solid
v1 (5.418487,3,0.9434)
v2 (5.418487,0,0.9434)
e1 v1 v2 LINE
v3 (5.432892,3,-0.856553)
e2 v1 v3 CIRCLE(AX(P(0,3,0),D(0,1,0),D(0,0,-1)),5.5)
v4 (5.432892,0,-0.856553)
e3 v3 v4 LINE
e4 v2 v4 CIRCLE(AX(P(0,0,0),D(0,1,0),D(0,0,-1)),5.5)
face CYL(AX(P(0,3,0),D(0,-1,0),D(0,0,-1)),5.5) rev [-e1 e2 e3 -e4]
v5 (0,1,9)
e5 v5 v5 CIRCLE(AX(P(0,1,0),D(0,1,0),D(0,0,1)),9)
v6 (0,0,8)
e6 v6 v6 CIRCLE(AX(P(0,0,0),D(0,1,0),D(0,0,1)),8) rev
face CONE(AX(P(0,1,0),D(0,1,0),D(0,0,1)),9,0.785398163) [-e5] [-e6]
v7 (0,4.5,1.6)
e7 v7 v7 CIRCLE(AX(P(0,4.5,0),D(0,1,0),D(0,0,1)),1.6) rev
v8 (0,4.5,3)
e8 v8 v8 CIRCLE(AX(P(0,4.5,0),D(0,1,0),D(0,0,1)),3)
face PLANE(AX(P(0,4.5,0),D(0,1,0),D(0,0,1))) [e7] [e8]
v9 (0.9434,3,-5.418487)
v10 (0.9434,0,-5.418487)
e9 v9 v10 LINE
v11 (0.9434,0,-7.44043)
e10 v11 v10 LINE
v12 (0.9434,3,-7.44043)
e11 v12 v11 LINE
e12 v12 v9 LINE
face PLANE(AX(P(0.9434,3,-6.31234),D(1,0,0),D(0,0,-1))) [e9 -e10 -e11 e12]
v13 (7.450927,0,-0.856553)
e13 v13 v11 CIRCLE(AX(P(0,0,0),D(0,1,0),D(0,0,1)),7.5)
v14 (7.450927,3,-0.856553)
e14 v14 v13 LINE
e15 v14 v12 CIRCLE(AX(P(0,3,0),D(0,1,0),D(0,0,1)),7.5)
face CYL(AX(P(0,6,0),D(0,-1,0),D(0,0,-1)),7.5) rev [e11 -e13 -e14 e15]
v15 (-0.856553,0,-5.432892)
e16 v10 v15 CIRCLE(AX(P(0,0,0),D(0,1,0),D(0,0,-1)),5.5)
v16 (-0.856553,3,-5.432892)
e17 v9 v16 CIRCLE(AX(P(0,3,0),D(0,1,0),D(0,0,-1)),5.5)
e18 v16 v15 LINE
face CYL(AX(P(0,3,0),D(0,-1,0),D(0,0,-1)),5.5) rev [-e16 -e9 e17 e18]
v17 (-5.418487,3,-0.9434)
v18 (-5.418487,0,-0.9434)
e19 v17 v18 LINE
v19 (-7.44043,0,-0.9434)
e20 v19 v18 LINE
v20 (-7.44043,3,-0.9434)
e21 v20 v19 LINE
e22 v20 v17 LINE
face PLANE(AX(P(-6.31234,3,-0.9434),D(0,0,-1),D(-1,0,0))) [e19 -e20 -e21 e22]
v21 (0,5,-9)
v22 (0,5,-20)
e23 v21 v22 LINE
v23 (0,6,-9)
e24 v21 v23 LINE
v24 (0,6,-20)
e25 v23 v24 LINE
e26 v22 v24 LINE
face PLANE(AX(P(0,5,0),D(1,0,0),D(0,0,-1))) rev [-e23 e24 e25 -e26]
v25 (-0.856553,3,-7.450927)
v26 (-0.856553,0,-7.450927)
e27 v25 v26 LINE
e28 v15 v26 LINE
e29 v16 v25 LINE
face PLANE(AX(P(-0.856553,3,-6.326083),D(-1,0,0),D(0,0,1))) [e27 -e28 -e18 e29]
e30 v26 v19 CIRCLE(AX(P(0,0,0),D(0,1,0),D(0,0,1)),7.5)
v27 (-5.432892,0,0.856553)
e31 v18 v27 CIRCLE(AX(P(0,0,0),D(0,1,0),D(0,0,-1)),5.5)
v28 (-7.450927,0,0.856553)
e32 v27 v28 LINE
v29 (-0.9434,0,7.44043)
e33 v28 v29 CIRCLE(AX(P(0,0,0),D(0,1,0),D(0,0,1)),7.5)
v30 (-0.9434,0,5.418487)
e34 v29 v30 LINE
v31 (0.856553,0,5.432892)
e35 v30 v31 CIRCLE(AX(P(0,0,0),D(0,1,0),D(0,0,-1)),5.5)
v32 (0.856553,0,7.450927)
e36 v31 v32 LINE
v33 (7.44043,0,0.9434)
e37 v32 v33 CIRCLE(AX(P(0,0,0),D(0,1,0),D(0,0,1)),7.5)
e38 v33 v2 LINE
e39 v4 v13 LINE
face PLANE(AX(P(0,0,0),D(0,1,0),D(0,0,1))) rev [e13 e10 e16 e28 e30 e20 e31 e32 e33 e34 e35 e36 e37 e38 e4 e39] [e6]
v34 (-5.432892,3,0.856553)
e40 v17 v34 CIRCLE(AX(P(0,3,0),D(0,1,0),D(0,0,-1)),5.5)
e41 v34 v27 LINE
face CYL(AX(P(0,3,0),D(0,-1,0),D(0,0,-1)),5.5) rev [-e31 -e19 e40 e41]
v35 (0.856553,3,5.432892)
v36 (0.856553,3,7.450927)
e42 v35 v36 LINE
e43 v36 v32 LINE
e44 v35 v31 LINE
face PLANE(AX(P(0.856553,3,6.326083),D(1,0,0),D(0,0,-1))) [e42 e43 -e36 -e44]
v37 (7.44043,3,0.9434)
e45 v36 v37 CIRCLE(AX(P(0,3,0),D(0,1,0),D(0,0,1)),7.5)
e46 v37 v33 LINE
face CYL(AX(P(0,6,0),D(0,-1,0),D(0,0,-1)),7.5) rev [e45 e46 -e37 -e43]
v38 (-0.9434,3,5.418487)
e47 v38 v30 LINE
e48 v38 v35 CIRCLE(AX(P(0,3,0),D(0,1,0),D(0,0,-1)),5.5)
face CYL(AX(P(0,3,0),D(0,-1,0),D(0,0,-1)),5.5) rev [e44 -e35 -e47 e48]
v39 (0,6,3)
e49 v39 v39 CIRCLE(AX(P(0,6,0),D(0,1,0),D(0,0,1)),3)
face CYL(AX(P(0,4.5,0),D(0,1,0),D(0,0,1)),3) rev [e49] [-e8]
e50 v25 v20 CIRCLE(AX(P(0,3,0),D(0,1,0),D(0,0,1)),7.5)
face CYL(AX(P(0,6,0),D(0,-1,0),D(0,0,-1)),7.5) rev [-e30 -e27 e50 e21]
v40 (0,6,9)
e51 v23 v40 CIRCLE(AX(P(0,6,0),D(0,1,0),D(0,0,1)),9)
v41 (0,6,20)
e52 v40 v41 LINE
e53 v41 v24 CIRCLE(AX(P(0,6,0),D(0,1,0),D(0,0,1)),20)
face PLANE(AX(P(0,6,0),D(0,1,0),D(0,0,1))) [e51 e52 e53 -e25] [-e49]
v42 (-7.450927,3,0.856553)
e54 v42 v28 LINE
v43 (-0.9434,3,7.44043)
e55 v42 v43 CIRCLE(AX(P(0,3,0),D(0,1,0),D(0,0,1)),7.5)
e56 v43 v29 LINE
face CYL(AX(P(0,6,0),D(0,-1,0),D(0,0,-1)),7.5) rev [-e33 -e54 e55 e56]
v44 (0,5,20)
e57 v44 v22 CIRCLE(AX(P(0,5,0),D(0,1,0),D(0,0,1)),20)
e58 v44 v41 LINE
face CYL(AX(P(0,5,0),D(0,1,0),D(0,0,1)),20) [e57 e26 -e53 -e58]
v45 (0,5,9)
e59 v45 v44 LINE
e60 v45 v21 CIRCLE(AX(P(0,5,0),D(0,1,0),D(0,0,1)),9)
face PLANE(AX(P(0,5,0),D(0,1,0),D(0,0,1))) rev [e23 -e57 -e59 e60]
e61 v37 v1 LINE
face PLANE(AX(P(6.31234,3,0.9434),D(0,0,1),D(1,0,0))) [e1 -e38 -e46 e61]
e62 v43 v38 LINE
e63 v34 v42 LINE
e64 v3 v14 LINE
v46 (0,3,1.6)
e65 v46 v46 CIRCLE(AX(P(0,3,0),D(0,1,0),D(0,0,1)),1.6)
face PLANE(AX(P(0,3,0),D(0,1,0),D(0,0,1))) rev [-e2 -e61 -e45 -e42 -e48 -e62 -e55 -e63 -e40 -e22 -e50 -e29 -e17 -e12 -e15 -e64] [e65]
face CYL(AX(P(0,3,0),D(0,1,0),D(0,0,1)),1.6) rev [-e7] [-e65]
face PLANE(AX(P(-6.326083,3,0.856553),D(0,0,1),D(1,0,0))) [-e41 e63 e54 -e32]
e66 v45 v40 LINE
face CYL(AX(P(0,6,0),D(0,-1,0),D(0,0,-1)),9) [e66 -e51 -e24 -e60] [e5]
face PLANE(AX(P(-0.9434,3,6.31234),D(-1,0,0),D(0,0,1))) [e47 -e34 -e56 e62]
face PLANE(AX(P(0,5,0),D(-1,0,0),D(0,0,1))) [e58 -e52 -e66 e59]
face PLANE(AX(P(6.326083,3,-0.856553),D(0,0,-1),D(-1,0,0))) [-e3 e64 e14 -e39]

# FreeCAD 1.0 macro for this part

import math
import FreeCAD as App
import Part
import Sketcher
Q = App.Units.Quantity


def edges_at(feature, points):
    """Names of the edges that pass closest to the given points."""
    edges = feature.Shape.Edges
    near = lambda p: min(range(len(edges)), key=lambda i: edges[i].distToShape(Part.Vertex(*p))[0])
    return sorted({f"Edge{near(p) + 1}" for p in points})

doc = App.newDocument("Part")
body = doc.addObject("PartDesign::Body", "Body")

sketch1 = doc.addObject("Sketcher::SketchObject", "Sketch")
body.addObject(sketch1)
sketch1.AttachmentSupport = (doc.XZ_Plane, [""])
sketch1.MapMode = "FlatFace"
sketch1.addGeometry([
    Part.Circle(App.Vector(0, 0, 0), App.Vector(0, 0, 1), 9),
    Part.Circle(App.Vector(0, 0, 0), App.Vector(0, 0, 1), 7.5),
], False)
sketch1.addConstraint([
    Sketcher.Constraint("Coincident", 0, 3, -1, 1),
    Sketcher.Constraint("Coincident", 1, 3, -1, 1),
    Sketcher.Constraint("Diameter", 0, Q("18 mm")),
    Sketcher.Constraint("Diameter", 1, Q("15 mm")),
])
pad1 = doc.addObject("PartDesign::Pad", "Pad")
body.addObject(pad1)
pad1.Profile = sketch1
pad1.Length = 6
pad1.Reversed = True

sketch2 = doc.addObject("Sketcher::SketchObject", "Sketch001")
body.addObject(sketch2)
sketch2.AttachmentSupport = (doc.XZ_Plane, [""])
sketch2.MapMode = "FlatFace"
sketch2.AttachmentOffset = App.Placement(App.Vector(0, 0, -5), App.Rotation())
sketch2.addGeometry([
    Part.LineSegment(App.Vector(0, -20, 0), App.Vector(0, -9, 0)),
    Part.ArcOfCircle(Part.Circle(App.Vector(0, 0, 0), App.Vector(0, 0, 1), 9), math.radians(-90), math.radians(0)),
    Part.ArcOfCircle(Part.Circle(App.Vector(0, 0, 0), App.Vector(0, 0, 1), 9), math.radians(0), math.radians(90)),
    Part.LineSegment(App.Vector(0, 9, 0), App.Vector(0, 20, 0)),
    Part.ArcOfCircle(Part.Circle(App.Vector(0, 0, 0), App.Vector(0, 0, 1), 20), math.radians(0), math.radians(90)),
    Part.ArcOfCircle(Part.Circle(App.Vector(0, 0, 0), App.Vector(0, 0, 1), 20), math.radians(-90), math.radians(0)),
], False)
sketch2.addConstraint([
    Sketcher.Constraint("Coincident", 0, 2, 1, 1),
    Sketcher.Constraint("Tangent", 1, 2, 2, 1),
    Sketcher.Constraint("Coincident", 2, 2, 3, 1),
    Sketcher.Constraint("Coincident", 3, 2, 4, 2),
    Sketcher.Constraint("Tangent", 4, 1, 5, 2),
    Sketcher.Constraint("Coincident", 5, 1, 0, 1),
    Sketcher.Constraint("Vertical", 0),
    Sketcher.Constraint("Vertical", 3),
    Sketcher.Constraint("Coincident", 1, 3, -1, 1),
    Sketcher.Constraint("Coincident", 4, 3, -1, 1),
    Sketcher.Constraint("Equal", 1, 2),
    Sketcher.Constraint("Equal", 4, 5),
    Sketcher.Constraint("PointOnObject", 0, 2, -2),
    Sketcher.Constraint("PointOnObject", 1, 2, -1),
    Sketcher.Constraint("PointOnObject", 2, 2, -2),
    Sketcher.Constraint("PointOnObject", 4, 1, -1),
    Sketcher.Constraint("Radius", 1, Q("9 mm")),
    Sketcher.Constraint("Radius", 4, Q("20 mm")),
])
pad2 = doc.addObject("PartDesign::Pad", "Pad001")
body.addObject(pad2)
pad2.Profile = sketch2
pad2.Length = 1
pad2.Reversed = True

sketch3 = doc.addObject("Sketcher::SketchObject", "Sketch002")
body.addObject(sketch3)
sketch3.AttachmentSupport = (doc.XZ_Plane, [""])
sketch3.MapMode = "FlatFace"
sketch3.addGeometry([
    Part.ArcOfCircle(Part.Circle(App.Vector(0, 0, 0), App.Vector(0, 0, 1), 7.5), math.radians(83.442107), math.radians(97.226184)),
    Part.LineSegment(App.Vector(-0.9434, 7.44043, 0), App.Vector(-0.9434, 5.418487, 0)),
    Part.ArcOfCircle(Part.Circle(App.Vector(0, 0, 0), App.Vector(0, 0, 1), 5.5), math.radians(81.040461), math.radians(99.876625)),
    Part.LineSegment(App.Vector(0.856553, 5.432892, 0), App.Vector(0.856553, 7.450927, 0)),
    Part.ArcOfCircle(Part.Circle(App.Vector(0, 0, 0), App.Vector(0, 0, 1), 5.5), math.radians(-8.959539), math.radians(9.876625)),
    Part.LineSegment(App.Vector(5.432892, -0.856553, 0), App.Vector(7.450927, -0.856553, 0)),
    Part.ArcOfCircle(Part.Circle(App.Vector(0, 0, 0), App.Vector(0, 0, 1), 7.5), math.radians(-6.557893), math.radians(7.226184)),
    Part.LineSegment(App.Vector(7.44043, 0.9434, 0), App.Vector(5.418487, 0.9434, 0)),
    Part.ArcOfCircle(Part.Circle(App.Vector(0, 0, 0), App.Vector(0, 0, 1), 5.5), math.radians(-98.959539), math.radians(-80.123375)),
    Part.LineSegment(App.Vector(-0.856553, -5.432892, 0), App.Vector(-0.856553, -7.450927, 0)),
    Part.ArcOfCircle(Part.Circle(App.Vector(0, 0, 0), App.Vector(0, 0, 1), 7.5), math.radians(-96.557893), math.radians(-82.773816)),
    Part.LineSegment(App.Vector(0.9434, -7.44043, 0), App.Vector(0.9434, -5.418487, 0)),
    Part.ArcOfCircle(Part.Circle(App.Vector(0, 0, 0), App.Vector(0, 0, 1), 5.5), math.radians(171.040461), math.radians(189.876625)),
    Part.LineSegment(App.Vector(-5.432892, 0.856553, 0), App.Vector(-7.450927, 0.856553, 0)),
    Part.ArcOfCircle(Part.Circle(App.Vector(0, 0, 0), App.Vector(0, 0, 1), 7.5), math.radians(173.442107), math.radians(187.226184)),
    Part.LineSegment(App.Vector(-7.44043, -0.9434, 0), App.Vector(-5.418487, -0.9434, 0)),
], False)
sketch3.addConstraint([
    Sketcher.Constraint("Coincident", 0, 2, 1, 1),
    Sketcher.Constraint("Coincident", 1, 2, 2, 2),
    Sketcher.Constraint("Coincident", 2, 1, 3, 1),
    Sketcher.Constraint("Coincident", 3, 2, 0, 1),
    Sketcher.Constraint("Coincident", 4, 1, 5, 1),
    Sketcher.Constraint("Coincident", 5, 2, 6, 1),
    Sketcher.Constraint("Coincident", 6, 2, 7, 1),
    Sketcher.Constraint("Coincident", 7, 2, 4, 2),
    Sketcher.Constraint("Coincident", 8, 1, 9, 1),
    Sketcher.Constraint("Coincident", 9, 2, 10, 1),
    Sketcher.Constraint("Coincident", 10, 2, 11, 1),
    Sketcher.Constraint("Coincident", 11, 2, 8, 2),
    Sketcher.Constraint("Coincident", 12, 1, 13, 1),
    Sketcher.Constraint("Coincident", 13, 2, 14, 1),
    Sketcher.Constraint("Coincident", 14, 2, 15, 1),
    Sketcher.Constraint("Coincident", 15, 2, 12, 2),
    Sketcher.Constraint("Vertical", 1),
    Sketcher.Constraint("Vertical", 3),
    Sketcher.Constraint("Horizontal", 5),
    Sketcher.Constraint("Horizontal", 7),
    Sketcher.Constraint("Vertical", 9),
    Sketcher.Constraint("Vertical", 11),
    Sketcher.Constraint("Horizontal", 13),
    Sketcher.Constraint("Horizontal", 15),
    Sketcher.Constraint("Coincident", 0, 3, -1, 1),
    Sketcher.Constraint("Coincident", 2, 3, -1, 1),
    Sketcher.Constraint("Coincident", 4, 3, -1, 1),
    Sketcher.Constraint("Coincident", 6, 3, -1, 1),
    Sketcher.Constraint("Coincident", 8, 3, -1, 1),
    Sketcher.Constraint("Coincident", 10, 3, -1, 1),
    Sketcher.Constraint("Coincident", 12, 3, -1, 1),
    Sketcher.Constraint("Coincident", 14, 3, -1, 1),
    Sketcher.Constraint("Equal", 2, 4),
    Sketcher.Constraint("Equal", 0, 6),
    Sketcher.Constraint("Equal", 4, 8),
    Sketcher.Constraint("Equal", 6, 10),
    Sketcher.Constraint("Equal", 8, 12),
    Sketcher.Constraint("Equal", 10, 14),
    Sketcher.Constraint("Equal", 5, 13),
    Sketcher.Constraint("Equal", 7, 15),
    Sketcher.Constraint("Equal", 15, 1),
    Sketcher.Constraint("Equal", 13, 3),
    Sketcher.Constraint("Equal", 3, 9),
    Sketcher.Constraint("Equal", 1, 11),
    Sketcher.Constraint("Radius", 0, Q("7.5 mm")),
    Sketcher.Constraint("Radius", 2, Q("5.5 mm")),
    Sketcher.Constraint("DistanceX", 0, 2, -1, 1, Q("0.9434 mm")),
    Sketcher.Constraint("DistanceX", 5, 1, 5, 2, Q("2.018035 mm")),
])
pad3 = doc.addObject("PartDesign::Pad", "Pad002")
body.addObject(pad3)
pad3.Profile = sketch3
pad3.Length = 3
pad3.Reversed = True

sketch4 = doc.addObject("Sketcher::SketchObject", "Sketch003")
body.addObject(sketch4)
sketch4.AttachmentSupport = (doc.XZ_Plane, [""])
sketch4.MapMode = "FlatFace"
sketch4.AttachmentOffset = App.Placement(App.Vector(0, 0, -3), App.Rotation())
sketch4.addGeometry(Part.Circle(App.Vector(0, 0, 0), App.Vector(0, 0, 1), 7.5), False)
sketch4.addConstraint([
    Sketcher.Constraint("Coincident", 0, 3, -1, 1),
    Sketcher.Constraint("Diameter", 0, Q("15 mm")),
])
pad4 = doc.addObject("PartDesign::Pad", "Pad003")
body.addObject(pad4)
pad4.Profile = sketch4
pad4.Length = 3
pad4.Reversed = True

sketch5 = doc.addObject("Sketcher::SketchObject", "Sketch004")
body.addObject(sketch5)
sketch5.AttachmentSupport = (doc.XZ_Plane, [""])
sketch5.MapMode = "FlatFace"
sketch5.AttachmentOffset = App.Placement(App.Vector(0, 0, -6), App.Rotation())
sketch5.addGeometry(Part.Circle(App.Vector(0, 0, 0), App.Vector(0, 0, 1), 1.6), False)
sketch5.addConstraint([
    Sketcher.Constraint("Coincident", 0, 3, -1, 1),
    Sketcher.Constraint("Diameter", 0, Q("3.2 mm")),
])
pocket1 = doc.addObject("PartDesign::Pocket", "Pocket")
body.addObject(pocket1)
pocket1.Profile = sketch5
pocket1.Length = 3
pocket1.Reversed = True

sketch6 = doc.addObject("Sketcher::SketchObject", "Sketch005")
body.addObject(sketch6)
sketch6.AttachmentSupport = (doc.XZ_Plane, [""])
sketch6.MapMode = "FlatFace"
sketch6.AttachmentOffset = App.Placement(App.Vector(0, 0, -6), App.Rotation())
sketch6.addGeometry(Part.Circle(App.Vector(0, 0, 0), App.Vector(0, 0, 1), 3), False)
sketch6.addConstraint([
    Sketcher.Constraint("Coincident", 0, 3, -1, 1),
    Sketcher.Constraint("Diameter", 0, Q("6 mm")),
])
pocket2 = doc.addObject("PartDesign::Pocket", "Pocket001")
body.addObject(pocket2)
pocket2.Profile = sketch6
pocket2.Length = 1.5
pocket2.Reversed = True
doc.recompute()

chamfer = doc.addObject("PartDesign::Chamfer", "Chamfer")
body.addObject(chamfer)
chamfer.Base = (pocket2, edges_at(pocket2, [(0, 0, -9)]))
chamfer.Size = 1

doc.recompute()
